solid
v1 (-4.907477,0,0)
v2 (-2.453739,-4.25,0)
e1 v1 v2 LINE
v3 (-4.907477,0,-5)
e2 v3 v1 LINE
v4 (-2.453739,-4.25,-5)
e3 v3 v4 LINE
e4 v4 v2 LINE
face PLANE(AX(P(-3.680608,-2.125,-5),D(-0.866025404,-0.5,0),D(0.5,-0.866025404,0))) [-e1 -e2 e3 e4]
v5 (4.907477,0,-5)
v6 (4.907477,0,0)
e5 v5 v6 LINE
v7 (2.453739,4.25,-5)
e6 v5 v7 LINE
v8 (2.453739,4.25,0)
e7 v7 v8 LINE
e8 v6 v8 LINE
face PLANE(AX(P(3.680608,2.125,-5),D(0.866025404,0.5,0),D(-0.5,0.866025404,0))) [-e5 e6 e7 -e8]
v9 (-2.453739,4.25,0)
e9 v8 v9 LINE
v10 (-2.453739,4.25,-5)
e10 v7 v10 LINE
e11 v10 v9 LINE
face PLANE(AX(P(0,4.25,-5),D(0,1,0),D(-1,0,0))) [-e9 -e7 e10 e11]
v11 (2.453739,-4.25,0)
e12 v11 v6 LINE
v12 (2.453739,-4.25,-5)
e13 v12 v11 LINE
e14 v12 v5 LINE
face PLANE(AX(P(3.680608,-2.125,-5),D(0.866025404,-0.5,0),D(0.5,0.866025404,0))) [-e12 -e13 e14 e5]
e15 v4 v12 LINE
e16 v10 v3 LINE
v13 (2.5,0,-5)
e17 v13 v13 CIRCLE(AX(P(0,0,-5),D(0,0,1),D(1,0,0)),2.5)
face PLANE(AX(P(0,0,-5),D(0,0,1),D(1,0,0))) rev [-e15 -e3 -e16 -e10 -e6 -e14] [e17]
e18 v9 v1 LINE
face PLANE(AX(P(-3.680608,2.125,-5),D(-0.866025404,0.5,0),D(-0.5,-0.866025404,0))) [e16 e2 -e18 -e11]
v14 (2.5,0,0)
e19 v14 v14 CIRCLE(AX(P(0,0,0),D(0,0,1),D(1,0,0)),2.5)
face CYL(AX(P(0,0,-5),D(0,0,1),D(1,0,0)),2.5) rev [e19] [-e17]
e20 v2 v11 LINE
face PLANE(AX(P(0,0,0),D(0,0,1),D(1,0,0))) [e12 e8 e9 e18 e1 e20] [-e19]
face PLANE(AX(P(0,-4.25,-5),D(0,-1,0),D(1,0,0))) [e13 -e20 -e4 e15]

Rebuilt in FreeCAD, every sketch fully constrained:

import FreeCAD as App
import Part
import Sketcher
Q = App.Units.Quantity

doc = App.newDocument("Part")
body = doc.addObject("PartDesign::Body", "Body")

sketch1 = doc.addObject("Sketcher::SketchObject", "Sketch")
body.addObject(sketch1)
sketch1.AttachmentSupport = (doc.XY_Plane, [""])
sketch1.MapMode = "FlatFace"
sketch1.addGeometry(Part.LineSegment(App.Vector(4.907477, 0, 0), App.Vector(2.453739, 4.25, 0)), False)
sketch1.addGeometry(Part.LineSegment(App.Vector(2.453739, 4.25, 0), App.Vector(-2.453739, 4.25, 0)), False)
sketch1.addGeometry(Part.LineSegment(App.Vector(-2.453739, 4.25, 0), App.Vector(-4.907477, 0, 0)), False)
sketch1.addGeometry(Part.LineSegment(App.Vector(-4.907477, 0, 0), App.Vector(-2.453739, -4.25, 0)), False)
sketch1.addGeometry(Part.LineSegment(App.Vector(-2.453739, -4.25, 0), App.Vector(2.453739, -4.25, 0)), False)
sketch1.addGeometry(Part.LineSegment(App.Vector(2.453739, -4.25, 0), App.Vector(4.907477, 0, 0)), False)
sketch1.addGeometry(Part.Circle(App.Vector(0, 0, 0), App.Vector(0, 0, 1), 2.5), False)
sketch1.addConstraint(Sketcher.Constraint("Coincident", 0, 2, 1, 1))
sketch1.addConstraint(Sketcher.Constraint("Coincident", 1, 2, 2, 1))
sketch1.addConstraint(Sketcher.Constraint("Coincident", 2, 2, 3, 1))
sketch1.addConstraint(Sketcher.Constraint("Coincident", 3, 2, 4, 1))
sketch1.addConstraint(Sketcher.Constraint("Coincident", 4, 2, 5, 1))
sketch1.addConstraint(Sketcher.Constraint("Coincident", 5, 2, 0, 1))
sketch1.addConstraint(Sketcher.Constraint("Horizontal", 1))
sketch1.addConstraint(Sketcher.Constraint("Horizontal", 4))
sketch1.addConstraint(Sketcher.Constraint("Coincident", 6, 3, -1, 1))
sketch1.addConstraint(Sketcher.Constraint("Symmetric", 0, 2, 3, 2, -1, 1))
sketch1.addConstraint(Sketcher.Constraint("Symmetric", 2, 2, 5, 2, -1, 1))
sketch1.addConstraint(Sketcher.Constraint("PointOnObject", 2, 2, -1))
sketch1.addConstraint(Sketcher.Constraint("Parallel", 2, 5))
sketch1.addConstraint(Sketcher.Constraint("Vertical", 1, 2, 3, 2))
sketch1.addConstraint(Sketcher.Constraint("Diameter", 6, 5.0))
sketch1.addConstraint(Sketcher.Constraint("Angle", 0, Q("120 deg")))
sketch1.addConstraint(Sketcher.Constraint("DistanceY", 3, 2, 1, 2, 8.5))
sketch1.addConstraint(Sketcher.Constraint("DistanceX", 1, 2, 1, 1, 4.907477))
pad1 = doc.addObject("PartDesign::Pad", "Pad")
body.addObject(pad1)
pad1.Profile = sketch1
pad1.Length = 5
pad1.Reversed = True

doc.recompute()
